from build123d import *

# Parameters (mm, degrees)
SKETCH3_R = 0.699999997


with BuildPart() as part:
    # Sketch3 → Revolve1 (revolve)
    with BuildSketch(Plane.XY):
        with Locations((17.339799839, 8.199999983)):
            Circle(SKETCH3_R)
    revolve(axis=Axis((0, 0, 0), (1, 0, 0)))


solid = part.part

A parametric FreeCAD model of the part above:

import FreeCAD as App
import Part
import Sketcher

V = App.Vector
Q = App.Units.Quantity

doc = App.newDocument("Part")
params = doc.addObject("Spreadsheet::Sheet", "Params")
for row, (alias, value) in enumerate([
    ("sketch1_diameter", "1.4 mm"),
    ("revolution_angle", "360 deg"),
], start=1):
    params.set(f"A{row}", alias)
    params.set(f"B{row}", "=" + value)
    params.setAlias(f"B{row}", alias)

body = doc.addObject("PartDesign::Body", "Body")

sketch1 = body.newObject("Sketcher::SketchObject", "Sketch")
sketch1.AttachmentSupport = (doc.getObject("XY_Plane"), [""])
sketch1.MapMode = "FlatFace"
sketch1.addGeometry(Part.Circle(V(17.3, 8.2, 0), V(0, 0, 1), 0.7), False)
sketch1.addConstraint([
    Sketcher.Constraint("Diameter", 0, Q("1.4 mm")),
    Sketcher.Constraint("DistanceY", -1, 1, 0, 3, Q("8.2 mm")),
    Sketcher.Constraint("DistanceX", -1, 1, 0, 3, Q("17.3398 mm")),
])
sketch1.setExpression("Constraints[0]", "Params.sketch1_diameter")
revolution = body.newObject("PartDesign::Revolution", "Revolution")
revolution.Profile = sketch1
revolution.ReferenceAxis = (sketch1, ["H_Axis"])
revolution.setExpression("Angle", "Params.revolution_angle")

doc.recompute()
